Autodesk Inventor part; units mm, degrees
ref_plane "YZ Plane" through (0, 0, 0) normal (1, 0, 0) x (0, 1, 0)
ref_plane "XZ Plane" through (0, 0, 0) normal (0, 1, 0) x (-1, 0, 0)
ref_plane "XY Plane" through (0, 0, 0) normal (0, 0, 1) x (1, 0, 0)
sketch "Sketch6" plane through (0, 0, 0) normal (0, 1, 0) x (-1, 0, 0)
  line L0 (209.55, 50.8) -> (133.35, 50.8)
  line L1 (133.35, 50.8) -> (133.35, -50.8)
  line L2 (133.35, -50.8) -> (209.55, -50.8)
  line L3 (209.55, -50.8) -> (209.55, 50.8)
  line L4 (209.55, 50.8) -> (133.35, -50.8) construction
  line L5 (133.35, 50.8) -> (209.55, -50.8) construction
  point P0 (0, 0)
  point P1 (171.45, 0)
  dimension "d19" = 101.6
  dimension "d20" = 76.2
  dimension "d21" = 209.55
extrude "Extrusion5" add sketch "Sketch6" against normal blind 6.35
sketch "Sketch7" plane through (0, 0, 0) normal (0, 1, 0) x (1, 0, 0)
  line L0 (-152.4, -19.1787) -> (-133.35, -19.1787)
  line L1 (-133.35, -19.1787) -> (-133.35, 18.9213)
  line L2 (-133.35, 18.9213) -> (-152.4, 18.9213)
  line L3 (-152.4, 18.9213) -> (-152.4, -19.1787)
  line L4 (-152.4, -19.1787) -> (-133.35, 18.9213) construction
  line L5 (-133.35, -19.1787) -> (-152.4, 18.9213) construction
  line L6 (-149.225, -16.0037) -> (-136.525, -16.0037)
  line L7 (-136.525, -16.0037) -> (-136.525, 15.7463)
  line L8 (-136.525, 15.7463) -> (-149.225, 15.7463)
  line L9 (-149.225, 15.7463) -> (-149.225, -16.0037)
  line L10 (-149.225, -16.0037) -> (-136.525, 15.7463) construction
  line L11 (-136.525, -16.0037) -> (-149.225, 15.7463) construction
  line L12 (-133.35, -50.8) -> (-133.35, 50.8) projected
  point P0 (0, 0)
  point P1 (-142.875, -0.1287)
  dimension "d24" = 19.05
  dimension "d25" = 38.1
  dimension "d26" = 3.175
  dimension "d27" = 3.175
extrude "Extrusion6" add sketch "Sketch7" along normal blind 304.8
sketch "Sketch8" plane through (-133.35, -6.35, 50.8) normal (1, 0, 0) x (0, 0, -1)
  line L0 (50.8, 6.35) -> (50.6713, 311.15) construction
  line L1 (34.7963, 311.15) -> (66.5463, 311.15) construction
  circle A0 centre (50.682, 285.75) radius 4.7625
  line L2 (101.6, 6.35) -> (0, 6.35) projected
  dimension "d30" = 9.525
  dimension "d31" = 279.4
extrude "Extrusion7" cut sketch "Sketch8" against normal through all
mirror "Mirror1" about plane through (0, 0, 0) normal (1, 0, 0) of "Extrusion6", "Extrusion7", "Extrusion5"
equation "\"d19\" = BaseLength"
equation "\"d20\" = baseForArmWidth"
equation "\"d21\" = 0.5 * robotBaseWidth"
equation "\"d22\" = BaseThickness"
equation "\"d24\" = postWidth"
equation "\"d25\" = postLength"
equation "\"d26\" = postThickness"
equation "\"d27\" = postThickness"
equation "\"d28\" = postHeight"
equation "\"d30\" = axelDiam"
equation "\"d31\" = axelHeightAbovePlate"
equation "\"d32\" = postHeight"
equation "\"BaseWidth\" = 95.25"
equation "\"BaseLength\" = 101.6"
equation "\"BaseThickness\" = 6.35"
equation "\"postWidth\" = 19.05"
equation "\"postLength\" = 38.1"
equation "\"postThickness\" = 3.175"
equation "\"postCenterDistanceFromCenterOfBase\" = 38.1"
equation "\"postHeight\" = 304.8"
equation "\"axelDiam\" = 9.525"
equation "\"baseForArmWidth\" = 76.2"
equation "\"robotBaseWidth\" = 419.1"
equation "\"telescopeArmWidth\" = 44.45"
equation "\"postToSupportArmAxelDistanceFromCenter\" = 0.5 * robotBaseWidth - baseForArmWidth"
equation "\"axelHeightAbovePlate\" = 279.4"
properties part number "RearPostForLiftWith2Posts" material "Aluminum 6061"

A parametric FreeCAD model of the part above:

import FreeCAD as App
import Part
import Sketcher

V = App.Vector
Q = App.Units.Quantity


def add_polygon(sketch, points):
    """Adds a closed chain of lines whose ends are joined by coincident constraints."""
    first, n = sketch.GeometryCount, len(points)
    for a, b in zip(points, points[1:] + points[:1]):
        sketch.addGeometry(Part.LineSegment(App.Vector(*a, 0), App.Vector(*b, 0)), False)
    for i in range(n):
        sketch.addConstraint(Sketcher.Constraint("Coincident", first + i, 2, first + (i + 1) % n, 1))

doc = App.newDocument("Part")
body = doc.addObject("PartDesign::Body", "Body")
body.AllowCompound = True

sketch1 = body.newObject("Sketcher::SketchObject", "Sketch")
sketch1.AttachmentSupport = (doc.getObject("XZ_Plane"), [""])
sketch1.MapMode = "FlatFace"
add_polygon(sketch1, [(-210, -51), (-210, 51), (-133, 51), (-133, -51)])
sketch1.addConstraint(Sketcher.Constraint("Vertical", 0))
sketch1.addConstraint(Sketcher.Constraint("Horizontal", 1))
sketch1.addConstraint(Sketcher.Constraint("Vertical", 2))
sketch1.addConstraint(Sketcher.Constraint("Horizontal", 3))
sketch1.addConstraint(Sketcher.Constraint("DistanceX", 1, 1, 1, 2, Q("3 in")))
sketch1.addConstraint(Sketcher.Constraint("DistanceY", 0, 1, 0, 2, Q("4 in")))
sketch1.addConstraint(Sketcher.Constraint("DistanceX", 0, 2, -1, 1, Q("8.25 in")))
sketch1.addConstraint(Sketcher.Constraint("DistanceY", -1, 1, 0, 2, Q("2 in")))
pad1 = body.newObject("PartDesign::Pad", "Pad")
pad1.Profile = sketch1
pad1.Length = Q("0.25 in")

sketch2 = body.newObject("Sketcher::SketchObject", "Sketch001")
sketch2.AttachmentSupport = (doc.getObject("XZ_Plane"), [""])
sketch2.MapMode = "FlatFace"
add_polygon(sketch2, [(-152, -19), (-152, 19), (-133, 19), (-133, -19)])
add_polygon(sketch2, [(-137, 16), (-149, 16), (-149, -16), (-137, -16)])
sketch2.addConstraint(Sketcher.Constraint("Vertical", 0))
sketch2.addConstraint(Sketcher.Constraint("Horizontal", 1))
sketch2.addConstraint(Sketcher.Constraint("Vertical", 2))
sketch2.addConstraint(Sketcher.Constraint("Horizontal", 3))
sketch2.addConstraint(Sketcher.Constraint("Horizontal", 4))
sketch2.addConstraint(Sketcher.Constraint("Vertical", 5))
sketch2.addConstraint(Sketcher.Constraint("Horizontal", 6))
sketch2.addConstraint(Sketcher.Constraint("Vertical", 7))
sketch2.addConstraint(Sketcher.Constraint("DistanceY", 0, 1, 0, 2, Q("1.5 in")))
sketch2.addConstraint(Sketcher.Constraint("DistanceX", 1, 1, 1, 2, Q("0.75 in")))
sketch2.addConstraint(Sketcher.Constraint("DistanceX", 4, 2, 4, 1, Q("0.5 in")))
sketch2.addConstraint(Sketcher.Constraint("DistanceX", 0, 2, -1, 1, Q("6 in")))
sketch2.addConstraint(Sketcher.Constraint("DistanceX", 0, 2, 4, 2, Q("0.125 in")))
sketch2.addConstraint(Sketcher.Constraint("DistanceY", 4, 2, 0, 2, Q("0.125 in")))
sketch2.addConstraint(Sketcher.Constraint("DistanceY", 3, 2, 5, 2, Q("0.125 in")))
sketch2.addConstraint(Sketcher.Constraint("DistanceY", -1, 1, 0, 2, 19.1787))
pad2 = body.newObject("PartDesign::Pad", "Pad001")
pad2.Profile = sketch2
pad2.Length = Q("12 in")
pad2.Reversed = True

sketch3 = body.newObject("Sketcher::SketchObject", "Sketch002")
sketch3.AttachmentSupport = (doc.getObject("YZ_Plane"), [""])
sketch3.MapMode = "FlatFace"
sketch3.AttachmentOffset = App.Placement(V(0, 0, -5.25 * 25.4), App.Rotation())
sketch3.addGeometry(Part.Circle(V(279.4, 0.1, 0), V(0, 0, 1), 4.8), False)
sketch3.addConstraint(Sketcher.Constraint("Diameter", 0, Q("0.375 in")))
sketch3.addConstraint(Sketcher.Constraint("DistanceX", -1, 1, 0, 3, Q("11 in")))
sketch3.addConstraint(Sketcher.Constraint("DistanceY", -1, 1, 0, 3, 0.118))
pocket1 = body.newObject("PartDesign::Pocket", "Pocket")
pocket1.Profile = sketch3
pocket1.Type = "ThroughAll"
doc.recompute()

mirrored = body.newObject("PartDesign::Mirrored", "Mirrored")
mirrored.Originals = [pad2, pocket1, pad1]
mirrored.MirrorPlane = (doc.getObject("YZ_Plane"), [""])
body.Tip = mirrored

doc.recompute()
